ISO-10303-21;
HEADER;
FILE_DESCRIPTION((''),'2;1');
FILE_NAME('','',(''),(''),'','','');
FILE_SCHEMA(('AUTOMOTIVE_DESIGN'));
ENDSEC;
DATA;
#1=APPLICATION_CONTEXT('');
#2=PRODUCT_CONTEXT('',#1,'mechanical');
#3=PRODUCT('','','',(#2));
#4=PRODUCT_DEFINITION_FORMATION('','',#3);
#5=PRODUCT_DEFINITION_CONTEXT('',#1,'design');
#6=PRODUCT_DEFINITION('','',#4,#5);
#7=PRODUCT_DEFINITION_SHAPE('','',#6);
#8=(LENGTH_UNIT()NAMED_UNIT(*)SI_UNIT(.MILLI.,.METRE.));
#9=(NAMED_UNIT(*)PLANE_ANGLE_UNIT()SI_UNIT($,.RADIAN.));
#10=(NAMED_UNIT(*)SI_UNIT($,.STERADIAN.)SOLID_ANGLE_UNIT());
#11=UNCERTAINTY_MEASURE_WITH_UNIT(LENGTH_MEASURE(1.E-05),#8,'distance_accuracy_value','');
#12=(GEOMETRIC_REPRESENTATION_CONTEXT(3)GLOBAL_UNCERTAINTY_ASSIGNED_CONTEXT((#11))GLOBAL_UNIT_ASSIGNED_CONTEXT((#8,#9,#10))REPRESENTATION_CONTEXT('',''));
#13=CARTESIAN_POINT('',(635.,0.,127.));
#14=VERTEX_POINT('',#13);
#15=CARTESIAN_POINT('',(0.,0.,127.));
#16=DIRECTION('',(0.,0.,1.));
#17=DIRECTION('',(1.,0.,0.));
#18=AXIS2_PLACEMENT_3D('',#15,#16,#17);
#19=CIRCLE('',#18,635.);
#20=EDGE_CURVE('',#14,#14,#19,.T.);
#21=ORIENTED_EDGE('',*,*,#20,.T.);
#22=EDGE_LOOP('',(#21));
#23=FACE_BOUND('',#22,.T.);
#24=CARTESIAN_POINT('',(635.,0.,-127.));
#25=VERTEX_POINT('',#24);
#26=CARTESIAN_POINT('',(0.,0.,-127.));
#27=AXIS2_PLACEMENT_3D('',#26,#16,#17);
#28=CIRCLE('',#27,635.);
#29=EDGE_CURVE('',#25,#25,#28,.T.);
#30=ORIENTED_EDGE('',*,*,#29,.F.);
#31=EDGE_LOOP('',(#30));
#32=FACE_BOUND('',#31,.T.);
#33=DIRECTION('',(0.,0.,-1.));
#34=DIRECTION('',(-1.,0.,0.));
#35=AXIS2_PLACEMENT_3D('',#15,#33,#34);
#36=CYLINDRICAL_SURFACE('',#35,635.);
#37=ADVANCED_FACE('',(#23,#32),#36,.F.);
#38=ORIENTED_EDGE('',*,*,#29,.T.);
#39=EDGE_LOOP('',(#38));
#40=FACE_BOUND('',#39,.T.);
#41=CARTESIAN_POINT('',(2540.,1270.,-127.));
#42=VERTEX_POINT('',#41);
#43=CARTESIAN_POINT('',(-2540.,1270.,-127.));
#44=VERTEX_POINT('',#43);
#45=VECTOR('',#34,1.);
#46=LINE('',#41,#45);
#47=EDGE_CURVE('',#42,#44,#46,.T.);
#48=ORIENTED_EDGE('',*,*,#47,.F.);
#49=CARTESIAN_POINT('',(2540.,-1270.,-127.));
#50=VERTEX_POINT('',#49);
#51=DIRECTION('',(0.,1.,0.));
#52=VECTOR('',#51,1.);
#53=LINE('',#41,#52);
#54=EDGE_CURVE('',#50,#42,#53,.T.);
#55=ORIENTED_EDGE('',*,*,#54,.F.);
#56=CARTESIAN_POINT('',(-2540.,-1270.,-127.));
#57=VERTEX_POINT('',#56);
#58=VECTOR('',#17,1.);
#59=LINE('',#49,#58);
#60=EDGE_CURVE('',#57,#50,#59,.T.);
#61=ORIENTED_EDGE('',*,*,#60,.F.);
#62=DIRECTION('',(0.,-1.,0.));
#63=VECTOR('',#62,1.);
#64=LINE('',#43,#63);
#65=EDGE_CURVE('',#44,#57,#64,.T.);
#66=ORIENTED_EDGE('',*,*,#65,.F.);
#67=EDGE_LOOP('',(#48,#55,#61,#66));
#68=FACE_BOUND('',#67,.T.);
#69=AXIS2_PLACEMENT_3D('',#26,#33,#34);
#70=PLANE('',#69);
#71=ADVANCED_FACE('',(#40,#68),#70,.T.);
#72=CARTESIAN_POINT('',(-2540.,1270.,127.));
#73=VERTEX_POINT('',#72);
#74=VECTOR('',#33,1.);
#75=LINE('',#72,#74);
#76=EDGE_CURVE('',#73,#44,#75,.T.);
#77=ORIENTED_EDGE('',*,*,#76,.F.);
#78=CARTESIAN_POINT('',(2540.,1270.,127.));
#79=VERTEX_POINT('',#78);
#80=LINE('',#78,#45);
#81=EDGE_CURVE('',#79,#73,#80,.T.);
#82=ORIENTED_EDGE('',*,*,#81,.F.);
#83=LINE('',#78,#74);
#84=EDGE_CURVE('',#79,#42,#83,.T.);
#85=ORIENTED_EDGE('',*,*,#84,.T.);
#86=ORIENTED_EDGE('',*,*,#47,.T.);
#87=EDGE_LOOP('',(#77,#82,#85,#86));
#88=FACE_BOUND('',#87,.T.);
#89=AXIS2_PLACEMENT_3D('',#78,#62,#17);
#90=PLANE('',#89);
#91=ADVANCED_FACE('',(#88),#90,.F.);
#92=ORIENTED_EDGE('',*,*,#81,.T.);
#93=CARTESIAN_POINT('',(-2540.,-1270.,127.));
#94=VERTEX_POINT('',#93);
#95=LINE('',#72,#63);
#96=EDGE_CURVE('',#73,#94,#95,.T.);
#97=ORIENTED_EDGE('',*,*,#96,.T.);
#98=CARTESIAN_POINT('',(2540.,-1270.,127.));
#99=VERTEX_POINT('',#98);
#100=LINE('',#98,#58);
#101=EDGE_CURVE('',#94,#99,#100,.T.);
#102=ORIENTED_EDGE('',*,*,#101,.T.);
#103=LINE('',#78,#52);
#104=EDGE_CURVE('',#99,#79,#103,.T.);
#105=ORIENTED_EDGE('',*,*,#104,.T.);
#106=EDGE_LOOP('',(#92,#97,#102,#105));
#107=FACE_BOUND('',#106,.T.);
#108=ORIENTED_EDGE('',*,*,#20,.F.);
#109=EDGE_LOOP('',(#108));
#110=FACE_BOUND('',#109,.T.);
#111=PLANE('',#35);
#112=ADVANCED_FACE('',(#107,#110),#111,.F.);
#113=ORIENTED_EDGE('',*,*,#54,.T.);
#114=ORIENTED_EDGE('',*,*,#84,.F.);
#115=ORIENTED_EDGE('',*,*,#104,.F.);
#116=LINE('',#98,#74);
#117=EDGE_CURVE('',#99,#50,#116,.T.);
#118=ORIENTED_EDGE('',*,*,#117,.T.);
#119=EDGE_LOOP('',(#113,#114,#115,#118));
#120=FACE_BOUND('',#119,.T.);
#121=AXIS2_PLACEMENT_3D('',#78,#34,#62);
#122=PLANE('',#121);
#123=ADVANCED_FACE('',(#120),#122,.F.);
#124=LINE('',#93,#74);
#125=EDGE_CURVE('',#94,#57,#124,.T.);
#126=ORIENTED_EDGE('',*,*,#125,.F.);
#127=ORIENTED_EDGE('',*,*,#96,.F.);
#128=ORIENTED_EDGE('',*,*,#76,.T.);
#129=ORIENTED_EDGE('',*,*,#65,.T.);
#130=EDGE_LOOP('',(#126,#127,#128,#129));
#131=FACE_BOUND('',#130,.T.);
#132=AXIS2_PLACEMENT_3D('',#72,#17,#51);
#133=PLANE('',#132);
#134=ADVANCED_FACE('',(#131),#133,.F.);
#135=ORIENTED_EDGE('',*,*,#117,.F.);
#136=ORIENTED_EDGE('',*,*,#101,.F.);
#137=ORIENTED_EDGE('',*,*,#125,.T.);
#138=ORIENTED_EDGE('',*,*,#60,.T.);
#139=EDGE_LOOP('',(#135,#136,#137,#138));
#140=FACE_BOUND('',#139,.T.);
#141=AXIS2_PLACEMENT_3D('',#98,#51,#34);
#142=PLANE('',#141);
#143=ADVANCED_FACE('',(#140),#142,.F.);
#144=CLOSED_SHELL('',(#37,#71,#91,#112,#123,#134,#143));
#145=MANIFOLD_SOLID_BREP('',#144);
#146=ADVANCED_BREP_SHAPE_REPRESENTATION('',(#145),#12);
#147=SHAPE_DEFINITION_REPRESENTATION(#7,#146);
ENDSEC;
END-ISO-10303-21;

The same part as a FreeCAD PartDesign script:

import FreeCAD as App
import Part
import Sketcher
from FreeCAD import Vector
Q = App.Units.Quantity

doc = App.newDocument("Part")
body = doc.addObject("PartDesign::Body", "Body")

# Sketch on XY plane
sketch1 = body.newObject("Sketcher::SketchObject", "Sketch")
sketch1.AttachmentSupport = (doc.getObject("XY_Plane"), [""])
sketch1.MapMode = "FlatFace"
sketch1.addGeometry([
    Part.LineSegment(Vector(-2540, 1270, 0), Vector(-2540, -1270, 0)),  # 0
    Part.LineSegment(Vector(-2540, -1270, 0), Vector(2540, -1270, 0)),  # 1
    Part.LineSegment(Vector(2540, -1270, 0), Vector(2540, 1270, 0)),  # 2
    Part.LineSegment(Vector(2540, 1270, 0), Vector(-2540, 1270, 0)),  # 3
    Part.Circle(Vector(0, 0, 0), Vector(0, 0, 1), 635),  # 4
], False)
sketch1.addConstraint([
    Sketcher.Constraint("Coincident", 0, 2, 1, 1),
    Sketcher.Constraint("Coincident", 1, 2, 2, 1),
    Sketcher.Constraint("Coincident", 2, 2, 3, 1),
    Sketcher.Constraint("Coincident", 3, 2, 0, 1),
    Sketcher.Constraint("Vertical", 0),
    Sketcher.Constraint("Horizontal", 1),
    Sketcher.Constraint("Vertical", 2),
    Sketcher.Constraint("Horizontal", 3),
    Sketcher.Constraint("Coincident", 4, 3, -1, 1),
    Sketcher.Constraint("Symmetric", 0, 2, 2, 2, -1, 1),
    Sketcher.Constraint("Diameter", 4, Q("50 in")),
    Sketcher.Constraint("DistanceX", 1, 1, 1, 2, Q("200 in")),
    Sketcher.Constraint("DistanceY", 0, 2, 0, 1, Q("100 in")),
])
pad1 = body.newObject("PartDesign::Pad", "Pad")
pad1.Profile = sketch1
pad1.Length = Q("10 in")
pad1.Midplane = True

doc.recompute()
